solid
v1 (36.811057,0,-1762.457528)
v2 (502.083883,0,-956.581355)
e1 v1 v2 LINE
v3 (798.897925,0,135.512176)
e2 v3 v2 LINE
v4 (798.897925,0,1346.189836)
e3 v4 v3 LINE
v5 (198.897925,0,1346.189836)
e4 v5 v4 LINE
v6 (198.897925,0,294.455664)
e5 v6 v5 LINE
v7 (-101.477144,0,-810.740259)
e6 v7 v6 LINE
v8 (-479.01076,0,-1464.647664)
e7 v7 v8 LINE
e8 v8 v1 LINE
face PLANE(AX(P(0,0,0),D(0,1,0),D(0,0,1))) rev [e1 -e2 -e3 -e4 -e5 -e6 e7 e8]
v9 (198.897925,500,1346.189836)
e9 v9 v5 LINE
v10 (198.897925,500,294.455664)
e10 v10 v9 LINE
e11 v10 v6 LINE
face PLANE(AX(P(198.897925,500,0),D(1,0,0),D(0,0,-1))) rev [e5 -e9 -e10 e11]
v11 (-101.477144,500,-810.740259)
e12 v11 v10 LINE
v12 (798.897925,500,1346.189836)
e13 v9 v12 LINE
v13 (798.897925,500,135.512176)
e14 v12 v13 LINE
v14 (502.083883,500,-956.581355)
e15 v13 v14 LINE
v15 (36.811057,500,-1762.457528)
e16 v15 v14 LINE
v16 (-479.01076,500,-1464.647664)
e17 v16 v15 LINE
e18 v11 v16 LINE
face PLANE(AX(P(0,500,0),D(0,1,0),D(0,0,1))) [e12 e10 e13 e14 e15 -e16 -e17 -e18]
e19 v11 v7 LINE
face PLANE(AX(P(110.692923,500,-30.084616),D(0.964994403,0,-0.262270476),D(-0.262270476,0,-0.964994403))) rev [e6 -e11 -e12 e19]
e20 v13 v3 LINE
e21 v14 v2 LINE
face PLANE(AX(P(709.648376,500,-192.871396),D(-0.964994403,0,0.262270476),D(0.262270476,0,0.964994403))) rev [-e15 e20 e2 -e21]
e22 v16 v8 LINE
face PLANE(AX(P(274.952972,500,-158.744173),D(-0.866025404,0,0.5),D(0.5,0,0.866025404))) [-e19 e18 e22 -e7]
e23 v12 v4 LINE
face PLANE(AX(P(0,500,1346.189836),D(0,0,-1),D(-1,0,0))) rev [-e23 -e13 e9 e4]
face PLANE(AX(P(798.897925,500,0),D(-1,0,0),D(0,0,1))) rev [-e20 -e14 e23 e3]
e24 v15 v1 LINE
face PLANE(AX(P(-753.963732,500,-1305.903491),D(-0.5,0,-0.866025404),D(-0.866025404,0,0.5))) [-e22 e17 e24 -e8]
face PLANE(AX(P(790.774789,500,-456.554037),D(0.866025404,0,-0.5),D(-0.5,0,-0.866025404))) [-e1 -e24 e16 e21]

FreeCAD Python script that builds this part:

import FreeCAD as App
import Part
import Sketcher
Q = App.Units.Quantity

doc = App.newDocument("Part")
body = doc.addObject("PartDesign::Body", "Body")

# Sketch on XZ plane
sketch1 = doc.addObject("Sketcher::SketchObject", "Sketch")
body.addObject(sketch1)
sketch1.AttachmentSupport = (doc.XZ_Plane, [""])
sketch1.MapMode = "FlatFace"
sketch1.addGeometry(Part.LineSegment(App.Vector(502, -957, 0), App.Vector(37, -1762, 0)), False)
sketch1.addGeometry(Part.LineSegment(App.Vector(37, -1762, 0), App.Vector(-479, -1465, 0)), False)
sketch1.addGeometry(Part.LineSegment(App.Vector(-479, -1465, 0), App.Vector(-101, -811, 0)), False)
sketch1.addGeometry(Part.LineSegment(App.Vector(-101, -811, 0), App.Vector(502, -957, 0)), False)
sketch1.addConstraint(Sketcher.Constraint("Coincident", 0, 2, 1, 1))
sketch1.addConstraint(Sketcher.Constraint("Coincident", 1, 2, 2, 1))
sketch1.addConstraint(Sketcher.Constraint("Coincident", 2, 2, 3, 1))
sketch1.addConstraint(Sketcher.Constraint("Coincident", 3, 2, 0, 1))
sketch1.addConstraint(Sketcher.Constraint("Perpendicular", 0, 1))
sketch1.addConstraint(Sketcher.Constraint("Perpendicular", 1, 2))
sketch1.addConstraint(Sketcher.Constraint("Angle", 0, Q("-120 deg")))
sketch1.addConstraint(Sketcher.Constraint("DistanceX", 2, 2, 0, 2, Q("138.288201 mm")))
sketch1.addConstraint(Sketcher.Constraint("Distance", 0, Q("930.545652 mm")))
sketch1.addConstraint(Sketcher.Constraint("Distance", 1, Q("595.619729 mm")))
sketch1.addConstraint(Sketcher.Constraint("DistanceY", 0, 2, -1, 1, Q("1762.457528 mm")))
sketch1.addConstraint(Sketcher.Constraint("DistanceX", 1, 2, -1, 1, Q("479.01076 mm")))
pad1 = doc.addObject("PartDesign::Pad", "Pad")
body.addObject(pad1)
pad1.Profile = sketch1
pad1.Length = 500
pad1.Reversed = True

# Sketch on XZ plane
sketch2 = doc.addObject("Sketcher::SketchObject", "Sketch001")
body.addObject(sketch2)
sketch2.AttachmentSupport = (doc.XZ_Plane, [""])
sketch2.MapMode = "FlatFace"
sketch2.addGeometry(Part.LineSegment(App.Vector(191, 266, 0), App.Vector(199, 294, 0)), False)
sketch2.addGeometry(Part.LineSegment(App.Vector(199, 294, 0), App.Vector(199, 1346, 0)), False)
sketch2.addGeometry(Part.LineSegment(App.Vector(199, 1346, 0), App.Vector(799, 1346, 0)), False)
sketch2.addGeometry(Part.LineSegment(App.Vector(799, 1346, 0), App.Vector(799, 136, 0)), False)
sketch2.addGeometry(Part.LineSegment(App.Vector(799, 136, 0), App.Vector(502, -957, 0)), False)
sketch2.addGeometry(Part.LineSegment(App.Vector(502, -957, 0), App.Vector(-101, -811, 0)), False)
sketch2.addGeometry(Part.LineSegment(App.Vector(-101, -811, 0), App.Vector(191, 266, 0)), False)
sketch2.addConstraint(Sketcher.Constraint("Coincident", 0, 2, 1, 1))
sketch2.addConstraint(Sketcher.Constraint("Coincident", 1, 2, 2, 1))
sketch2.addConstraint(Sketcher.Constraint("Coincident", 2, 2, 3, 1))
sketch2.addConstraint(Sketcher.Constraint("Coincident", 3, 2, 4, 1))
sketch2.addConstraint(Sketcher.Constraint("Coincident", 4, 2, 5, 1))
sketch2.addConstraint(Sketcher.Constraint("Coincident", 5, 2, 6, 1))
sketch2.addConstraint(Sketcher.Constraint("Coincident", 6, 2, 0, 1))
sketch2.addConstraint(Sketcher.Constraint("Vertical", 1))
sketch2.addConstraint(Sketcher.Constraint("Horizontal", 2))
sketch2.addConstraint(Sketcher.Constraint("Vertical", 3))
sketch2.addConstraint(Sketcher.Constraint("Parallel", 0, 4))
sketch2.addConstraint(Sketcher.Constraint("Parallel", 4, 6))
sketch2.addConstraint(Sketcher.Constraint("DistanceX", 2, 1, 2, 2, Q("600 mm")))
sketch2.addConstraint(Sketcher.Constraint("Distance", 6, Q("1115.287201 mm")))
sketch2.addConstraint(Sketcher.Constraint("DistanceY", 1, 1, 1, 2, Q("1051.734171 mm")))
sketch2.addConstraint(Sketcher.Constraint("DistanceY", 3, 2, 3, 1, Q("1210.67766 mm")))
sketch2.addConstraint(Sketcher.Constraint("Distance", 0, Q("30.000192 mm")))
sketch2.addConstraint(Sketcher.Constraint("DistanceY", 5, 2, -1, 1, Q("810.740259 mm")))
sketch2.addConstraint(Sketcher.Constraint("DistanceX", -1, 1, 6, 2, Q("191.029761 mm")))
sketch2.addConstraint(Sketcher.Constraint("DistanceY", 4, 2, 3, 2, Q("1092.093531 mm")))
sketch2.addConstraint(Sketcher.Constraint("DistanceX", 5, 2, 0, 2, Q("300.37507 mm")))
pad2 = doc.addObject("PartDesign::Pad", "Pad001")
body.addObject(pad2)
pad2.Profile = sketch2
pad2.Length = 500
pad2.Reversed = True

doc.recompute()
